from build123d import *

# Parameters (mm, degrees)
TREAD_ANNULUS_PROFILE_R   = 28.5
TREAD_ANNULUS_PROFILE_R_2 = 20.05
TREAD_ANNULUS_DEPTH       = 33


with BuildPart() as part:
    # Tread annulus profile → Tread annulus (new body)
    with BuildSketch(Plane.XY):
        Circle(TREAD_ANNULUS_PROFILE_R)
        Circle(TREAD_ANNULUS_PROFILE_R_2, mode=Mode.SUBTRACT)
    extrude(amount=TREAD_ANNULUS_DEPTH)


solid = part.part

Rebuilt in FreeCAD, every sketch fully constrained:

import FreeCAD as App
import Part
import Sketcher
from FreeCAD import Vector

doc = App.newDocument("Part")
body = doc.addObject("PartDesign::Body", "Body")

# Sketch on XY plane
sketch1 = body.newObject("Sketcher::SketchObject", "Sketch")
sketch1.AttachmentSupport = (doc.getObject("XY_Plane"), [""])
sketch1.MapMode = "FlatFace"
sketch1.addGeometry(Part.Circle(Vector(0, 0, 0), Vector(0, 0, 1), 28.5), False)
sketch1.addGeometry(Part.Circle(Vector(0, 0, 0), Vector(0, 0, 1), 20.05), False)
sketch1.addConstraint(Sketcher.Constraint("Coincident", 0, 3, -1, 1))
sketch1.addConstraint(Sketcher.Constraint("Coincident", 1, 3, -1, 1))
sketch1.addConstraint(Sketcher.Constraint("Diameter", 0, 57.0))
sketch1.addConstraint(Sketcher.Constraint("Diameter", 1, 40.1))
pad1 = body.newObject("PartDesign::Pad", "Pad")
pad1.Profile = sketch1
pad1.Length = 33

doc.recompute()
